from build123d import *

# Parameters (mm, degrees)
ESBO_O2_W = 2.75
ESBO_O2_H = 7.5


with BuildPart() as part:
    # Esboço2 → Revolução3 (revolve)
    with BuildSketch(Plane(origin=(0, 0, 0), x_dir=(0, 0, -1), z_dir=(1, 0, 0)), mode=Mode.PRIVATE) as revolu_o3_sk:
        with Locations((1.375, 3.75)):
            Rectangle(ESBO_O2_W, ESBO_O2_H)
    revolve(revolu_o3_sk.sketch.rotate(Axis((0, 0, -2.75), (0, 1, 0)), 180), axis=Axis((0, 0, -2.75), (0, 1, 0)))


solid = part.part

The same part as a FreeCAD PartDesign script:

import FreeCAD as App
import Part
import Sketcher
from FreeCAD import Vector


def add_polygon(sketch, points):
    """Adds a closed chain of lines whose ends are joined by coincident constraints."""
    first, n = sketch.GeometryCount, len(points)
    for a, b in zip(points, points[1:] + points[:1]):
        sketch.addGeometry(Part.LineSegment(App.Vector(*a, 0), App.Vector(*b, 0)), False)
    for i in range(n):
        sketch.addConstraint(Sketcher.Constraint("Coincident", first + i, 2, first + (i + 1) % n, 1))

doc = App.newDocument("Part")
params = doc.addObject("Spreadsheet::Sheet", "Params")
for row, (alias, value) in enumerate([
    ("sketch1_width", "7.5 mm"),
    ("sketch1_height", "2.75 mm"),
    ("revolution_angle", "360 deg"),
], start=1):
    params.set(f"A{row}", alias)
    params.set(f"B{row}", "=" + value)
    params.setAlias(f"B{row}", alias)

body = doc.addObject("PartDesign::Body", "Body")

# Sketch on YZ plane
sketch1 = doc.addObject("Sketcher::SketchObject", "Sketch")
body.addObject(sketch1)
sketch1.AttachmentSupport = (doc.YZ_Plane, [""])
sketch1.MapMode = "FlatFace"
add_polygon(sketch1, [(7.5, 0), (0, 0), (0, -2.8), (7.5, -2.8)])  # lines 0-3
sketch1.addGeometry(Part.LineSegment(Vector(0, -2.8, 0), Vector(7.5, -2.8, 0)), True)  # axis
sketch1.addConstraint([
    Sketcher.Constraint("Horizontal", 0),
    Sketcher.Constraint("Vertical", 1),
    Sketcher.Constraint("Horizontal", 2),
    Sketcher.Constraint("Vertical", 3),
    Sketcher.Constraint("Horizontal", 4),
    Sketcher.Constraint("Coincident", 0, 2, -1, 1),
    Sketcher.Constraint("Coincident", 4, 1, 1, 2),
    Sketcher.Constraint("Vertical", 3, 2, 4, 2),
    Sketcher.Constraint("DistanceX", 0, 2, 0, 1, 7.5),
    Sketcher.Constraint("DistanceY", 1, 2, 1, 1, 2.75),
])
sketch1.setExpression("Constraints[12]", "Params.sketch1_width")
sketch1.setExpression("Constraints[13]", "Params.sketch1_height")
revolution = doc.addObject("PartDesign::Revolution", "Revolution")
body.addObject(revolution)
revolution.Profile = sketch1
revolution.ReferenceAxis = (sketch1, ["Axis0"])
revolution.setExpression("Angle", "Params.revolution_angle")

doc.recompute()
